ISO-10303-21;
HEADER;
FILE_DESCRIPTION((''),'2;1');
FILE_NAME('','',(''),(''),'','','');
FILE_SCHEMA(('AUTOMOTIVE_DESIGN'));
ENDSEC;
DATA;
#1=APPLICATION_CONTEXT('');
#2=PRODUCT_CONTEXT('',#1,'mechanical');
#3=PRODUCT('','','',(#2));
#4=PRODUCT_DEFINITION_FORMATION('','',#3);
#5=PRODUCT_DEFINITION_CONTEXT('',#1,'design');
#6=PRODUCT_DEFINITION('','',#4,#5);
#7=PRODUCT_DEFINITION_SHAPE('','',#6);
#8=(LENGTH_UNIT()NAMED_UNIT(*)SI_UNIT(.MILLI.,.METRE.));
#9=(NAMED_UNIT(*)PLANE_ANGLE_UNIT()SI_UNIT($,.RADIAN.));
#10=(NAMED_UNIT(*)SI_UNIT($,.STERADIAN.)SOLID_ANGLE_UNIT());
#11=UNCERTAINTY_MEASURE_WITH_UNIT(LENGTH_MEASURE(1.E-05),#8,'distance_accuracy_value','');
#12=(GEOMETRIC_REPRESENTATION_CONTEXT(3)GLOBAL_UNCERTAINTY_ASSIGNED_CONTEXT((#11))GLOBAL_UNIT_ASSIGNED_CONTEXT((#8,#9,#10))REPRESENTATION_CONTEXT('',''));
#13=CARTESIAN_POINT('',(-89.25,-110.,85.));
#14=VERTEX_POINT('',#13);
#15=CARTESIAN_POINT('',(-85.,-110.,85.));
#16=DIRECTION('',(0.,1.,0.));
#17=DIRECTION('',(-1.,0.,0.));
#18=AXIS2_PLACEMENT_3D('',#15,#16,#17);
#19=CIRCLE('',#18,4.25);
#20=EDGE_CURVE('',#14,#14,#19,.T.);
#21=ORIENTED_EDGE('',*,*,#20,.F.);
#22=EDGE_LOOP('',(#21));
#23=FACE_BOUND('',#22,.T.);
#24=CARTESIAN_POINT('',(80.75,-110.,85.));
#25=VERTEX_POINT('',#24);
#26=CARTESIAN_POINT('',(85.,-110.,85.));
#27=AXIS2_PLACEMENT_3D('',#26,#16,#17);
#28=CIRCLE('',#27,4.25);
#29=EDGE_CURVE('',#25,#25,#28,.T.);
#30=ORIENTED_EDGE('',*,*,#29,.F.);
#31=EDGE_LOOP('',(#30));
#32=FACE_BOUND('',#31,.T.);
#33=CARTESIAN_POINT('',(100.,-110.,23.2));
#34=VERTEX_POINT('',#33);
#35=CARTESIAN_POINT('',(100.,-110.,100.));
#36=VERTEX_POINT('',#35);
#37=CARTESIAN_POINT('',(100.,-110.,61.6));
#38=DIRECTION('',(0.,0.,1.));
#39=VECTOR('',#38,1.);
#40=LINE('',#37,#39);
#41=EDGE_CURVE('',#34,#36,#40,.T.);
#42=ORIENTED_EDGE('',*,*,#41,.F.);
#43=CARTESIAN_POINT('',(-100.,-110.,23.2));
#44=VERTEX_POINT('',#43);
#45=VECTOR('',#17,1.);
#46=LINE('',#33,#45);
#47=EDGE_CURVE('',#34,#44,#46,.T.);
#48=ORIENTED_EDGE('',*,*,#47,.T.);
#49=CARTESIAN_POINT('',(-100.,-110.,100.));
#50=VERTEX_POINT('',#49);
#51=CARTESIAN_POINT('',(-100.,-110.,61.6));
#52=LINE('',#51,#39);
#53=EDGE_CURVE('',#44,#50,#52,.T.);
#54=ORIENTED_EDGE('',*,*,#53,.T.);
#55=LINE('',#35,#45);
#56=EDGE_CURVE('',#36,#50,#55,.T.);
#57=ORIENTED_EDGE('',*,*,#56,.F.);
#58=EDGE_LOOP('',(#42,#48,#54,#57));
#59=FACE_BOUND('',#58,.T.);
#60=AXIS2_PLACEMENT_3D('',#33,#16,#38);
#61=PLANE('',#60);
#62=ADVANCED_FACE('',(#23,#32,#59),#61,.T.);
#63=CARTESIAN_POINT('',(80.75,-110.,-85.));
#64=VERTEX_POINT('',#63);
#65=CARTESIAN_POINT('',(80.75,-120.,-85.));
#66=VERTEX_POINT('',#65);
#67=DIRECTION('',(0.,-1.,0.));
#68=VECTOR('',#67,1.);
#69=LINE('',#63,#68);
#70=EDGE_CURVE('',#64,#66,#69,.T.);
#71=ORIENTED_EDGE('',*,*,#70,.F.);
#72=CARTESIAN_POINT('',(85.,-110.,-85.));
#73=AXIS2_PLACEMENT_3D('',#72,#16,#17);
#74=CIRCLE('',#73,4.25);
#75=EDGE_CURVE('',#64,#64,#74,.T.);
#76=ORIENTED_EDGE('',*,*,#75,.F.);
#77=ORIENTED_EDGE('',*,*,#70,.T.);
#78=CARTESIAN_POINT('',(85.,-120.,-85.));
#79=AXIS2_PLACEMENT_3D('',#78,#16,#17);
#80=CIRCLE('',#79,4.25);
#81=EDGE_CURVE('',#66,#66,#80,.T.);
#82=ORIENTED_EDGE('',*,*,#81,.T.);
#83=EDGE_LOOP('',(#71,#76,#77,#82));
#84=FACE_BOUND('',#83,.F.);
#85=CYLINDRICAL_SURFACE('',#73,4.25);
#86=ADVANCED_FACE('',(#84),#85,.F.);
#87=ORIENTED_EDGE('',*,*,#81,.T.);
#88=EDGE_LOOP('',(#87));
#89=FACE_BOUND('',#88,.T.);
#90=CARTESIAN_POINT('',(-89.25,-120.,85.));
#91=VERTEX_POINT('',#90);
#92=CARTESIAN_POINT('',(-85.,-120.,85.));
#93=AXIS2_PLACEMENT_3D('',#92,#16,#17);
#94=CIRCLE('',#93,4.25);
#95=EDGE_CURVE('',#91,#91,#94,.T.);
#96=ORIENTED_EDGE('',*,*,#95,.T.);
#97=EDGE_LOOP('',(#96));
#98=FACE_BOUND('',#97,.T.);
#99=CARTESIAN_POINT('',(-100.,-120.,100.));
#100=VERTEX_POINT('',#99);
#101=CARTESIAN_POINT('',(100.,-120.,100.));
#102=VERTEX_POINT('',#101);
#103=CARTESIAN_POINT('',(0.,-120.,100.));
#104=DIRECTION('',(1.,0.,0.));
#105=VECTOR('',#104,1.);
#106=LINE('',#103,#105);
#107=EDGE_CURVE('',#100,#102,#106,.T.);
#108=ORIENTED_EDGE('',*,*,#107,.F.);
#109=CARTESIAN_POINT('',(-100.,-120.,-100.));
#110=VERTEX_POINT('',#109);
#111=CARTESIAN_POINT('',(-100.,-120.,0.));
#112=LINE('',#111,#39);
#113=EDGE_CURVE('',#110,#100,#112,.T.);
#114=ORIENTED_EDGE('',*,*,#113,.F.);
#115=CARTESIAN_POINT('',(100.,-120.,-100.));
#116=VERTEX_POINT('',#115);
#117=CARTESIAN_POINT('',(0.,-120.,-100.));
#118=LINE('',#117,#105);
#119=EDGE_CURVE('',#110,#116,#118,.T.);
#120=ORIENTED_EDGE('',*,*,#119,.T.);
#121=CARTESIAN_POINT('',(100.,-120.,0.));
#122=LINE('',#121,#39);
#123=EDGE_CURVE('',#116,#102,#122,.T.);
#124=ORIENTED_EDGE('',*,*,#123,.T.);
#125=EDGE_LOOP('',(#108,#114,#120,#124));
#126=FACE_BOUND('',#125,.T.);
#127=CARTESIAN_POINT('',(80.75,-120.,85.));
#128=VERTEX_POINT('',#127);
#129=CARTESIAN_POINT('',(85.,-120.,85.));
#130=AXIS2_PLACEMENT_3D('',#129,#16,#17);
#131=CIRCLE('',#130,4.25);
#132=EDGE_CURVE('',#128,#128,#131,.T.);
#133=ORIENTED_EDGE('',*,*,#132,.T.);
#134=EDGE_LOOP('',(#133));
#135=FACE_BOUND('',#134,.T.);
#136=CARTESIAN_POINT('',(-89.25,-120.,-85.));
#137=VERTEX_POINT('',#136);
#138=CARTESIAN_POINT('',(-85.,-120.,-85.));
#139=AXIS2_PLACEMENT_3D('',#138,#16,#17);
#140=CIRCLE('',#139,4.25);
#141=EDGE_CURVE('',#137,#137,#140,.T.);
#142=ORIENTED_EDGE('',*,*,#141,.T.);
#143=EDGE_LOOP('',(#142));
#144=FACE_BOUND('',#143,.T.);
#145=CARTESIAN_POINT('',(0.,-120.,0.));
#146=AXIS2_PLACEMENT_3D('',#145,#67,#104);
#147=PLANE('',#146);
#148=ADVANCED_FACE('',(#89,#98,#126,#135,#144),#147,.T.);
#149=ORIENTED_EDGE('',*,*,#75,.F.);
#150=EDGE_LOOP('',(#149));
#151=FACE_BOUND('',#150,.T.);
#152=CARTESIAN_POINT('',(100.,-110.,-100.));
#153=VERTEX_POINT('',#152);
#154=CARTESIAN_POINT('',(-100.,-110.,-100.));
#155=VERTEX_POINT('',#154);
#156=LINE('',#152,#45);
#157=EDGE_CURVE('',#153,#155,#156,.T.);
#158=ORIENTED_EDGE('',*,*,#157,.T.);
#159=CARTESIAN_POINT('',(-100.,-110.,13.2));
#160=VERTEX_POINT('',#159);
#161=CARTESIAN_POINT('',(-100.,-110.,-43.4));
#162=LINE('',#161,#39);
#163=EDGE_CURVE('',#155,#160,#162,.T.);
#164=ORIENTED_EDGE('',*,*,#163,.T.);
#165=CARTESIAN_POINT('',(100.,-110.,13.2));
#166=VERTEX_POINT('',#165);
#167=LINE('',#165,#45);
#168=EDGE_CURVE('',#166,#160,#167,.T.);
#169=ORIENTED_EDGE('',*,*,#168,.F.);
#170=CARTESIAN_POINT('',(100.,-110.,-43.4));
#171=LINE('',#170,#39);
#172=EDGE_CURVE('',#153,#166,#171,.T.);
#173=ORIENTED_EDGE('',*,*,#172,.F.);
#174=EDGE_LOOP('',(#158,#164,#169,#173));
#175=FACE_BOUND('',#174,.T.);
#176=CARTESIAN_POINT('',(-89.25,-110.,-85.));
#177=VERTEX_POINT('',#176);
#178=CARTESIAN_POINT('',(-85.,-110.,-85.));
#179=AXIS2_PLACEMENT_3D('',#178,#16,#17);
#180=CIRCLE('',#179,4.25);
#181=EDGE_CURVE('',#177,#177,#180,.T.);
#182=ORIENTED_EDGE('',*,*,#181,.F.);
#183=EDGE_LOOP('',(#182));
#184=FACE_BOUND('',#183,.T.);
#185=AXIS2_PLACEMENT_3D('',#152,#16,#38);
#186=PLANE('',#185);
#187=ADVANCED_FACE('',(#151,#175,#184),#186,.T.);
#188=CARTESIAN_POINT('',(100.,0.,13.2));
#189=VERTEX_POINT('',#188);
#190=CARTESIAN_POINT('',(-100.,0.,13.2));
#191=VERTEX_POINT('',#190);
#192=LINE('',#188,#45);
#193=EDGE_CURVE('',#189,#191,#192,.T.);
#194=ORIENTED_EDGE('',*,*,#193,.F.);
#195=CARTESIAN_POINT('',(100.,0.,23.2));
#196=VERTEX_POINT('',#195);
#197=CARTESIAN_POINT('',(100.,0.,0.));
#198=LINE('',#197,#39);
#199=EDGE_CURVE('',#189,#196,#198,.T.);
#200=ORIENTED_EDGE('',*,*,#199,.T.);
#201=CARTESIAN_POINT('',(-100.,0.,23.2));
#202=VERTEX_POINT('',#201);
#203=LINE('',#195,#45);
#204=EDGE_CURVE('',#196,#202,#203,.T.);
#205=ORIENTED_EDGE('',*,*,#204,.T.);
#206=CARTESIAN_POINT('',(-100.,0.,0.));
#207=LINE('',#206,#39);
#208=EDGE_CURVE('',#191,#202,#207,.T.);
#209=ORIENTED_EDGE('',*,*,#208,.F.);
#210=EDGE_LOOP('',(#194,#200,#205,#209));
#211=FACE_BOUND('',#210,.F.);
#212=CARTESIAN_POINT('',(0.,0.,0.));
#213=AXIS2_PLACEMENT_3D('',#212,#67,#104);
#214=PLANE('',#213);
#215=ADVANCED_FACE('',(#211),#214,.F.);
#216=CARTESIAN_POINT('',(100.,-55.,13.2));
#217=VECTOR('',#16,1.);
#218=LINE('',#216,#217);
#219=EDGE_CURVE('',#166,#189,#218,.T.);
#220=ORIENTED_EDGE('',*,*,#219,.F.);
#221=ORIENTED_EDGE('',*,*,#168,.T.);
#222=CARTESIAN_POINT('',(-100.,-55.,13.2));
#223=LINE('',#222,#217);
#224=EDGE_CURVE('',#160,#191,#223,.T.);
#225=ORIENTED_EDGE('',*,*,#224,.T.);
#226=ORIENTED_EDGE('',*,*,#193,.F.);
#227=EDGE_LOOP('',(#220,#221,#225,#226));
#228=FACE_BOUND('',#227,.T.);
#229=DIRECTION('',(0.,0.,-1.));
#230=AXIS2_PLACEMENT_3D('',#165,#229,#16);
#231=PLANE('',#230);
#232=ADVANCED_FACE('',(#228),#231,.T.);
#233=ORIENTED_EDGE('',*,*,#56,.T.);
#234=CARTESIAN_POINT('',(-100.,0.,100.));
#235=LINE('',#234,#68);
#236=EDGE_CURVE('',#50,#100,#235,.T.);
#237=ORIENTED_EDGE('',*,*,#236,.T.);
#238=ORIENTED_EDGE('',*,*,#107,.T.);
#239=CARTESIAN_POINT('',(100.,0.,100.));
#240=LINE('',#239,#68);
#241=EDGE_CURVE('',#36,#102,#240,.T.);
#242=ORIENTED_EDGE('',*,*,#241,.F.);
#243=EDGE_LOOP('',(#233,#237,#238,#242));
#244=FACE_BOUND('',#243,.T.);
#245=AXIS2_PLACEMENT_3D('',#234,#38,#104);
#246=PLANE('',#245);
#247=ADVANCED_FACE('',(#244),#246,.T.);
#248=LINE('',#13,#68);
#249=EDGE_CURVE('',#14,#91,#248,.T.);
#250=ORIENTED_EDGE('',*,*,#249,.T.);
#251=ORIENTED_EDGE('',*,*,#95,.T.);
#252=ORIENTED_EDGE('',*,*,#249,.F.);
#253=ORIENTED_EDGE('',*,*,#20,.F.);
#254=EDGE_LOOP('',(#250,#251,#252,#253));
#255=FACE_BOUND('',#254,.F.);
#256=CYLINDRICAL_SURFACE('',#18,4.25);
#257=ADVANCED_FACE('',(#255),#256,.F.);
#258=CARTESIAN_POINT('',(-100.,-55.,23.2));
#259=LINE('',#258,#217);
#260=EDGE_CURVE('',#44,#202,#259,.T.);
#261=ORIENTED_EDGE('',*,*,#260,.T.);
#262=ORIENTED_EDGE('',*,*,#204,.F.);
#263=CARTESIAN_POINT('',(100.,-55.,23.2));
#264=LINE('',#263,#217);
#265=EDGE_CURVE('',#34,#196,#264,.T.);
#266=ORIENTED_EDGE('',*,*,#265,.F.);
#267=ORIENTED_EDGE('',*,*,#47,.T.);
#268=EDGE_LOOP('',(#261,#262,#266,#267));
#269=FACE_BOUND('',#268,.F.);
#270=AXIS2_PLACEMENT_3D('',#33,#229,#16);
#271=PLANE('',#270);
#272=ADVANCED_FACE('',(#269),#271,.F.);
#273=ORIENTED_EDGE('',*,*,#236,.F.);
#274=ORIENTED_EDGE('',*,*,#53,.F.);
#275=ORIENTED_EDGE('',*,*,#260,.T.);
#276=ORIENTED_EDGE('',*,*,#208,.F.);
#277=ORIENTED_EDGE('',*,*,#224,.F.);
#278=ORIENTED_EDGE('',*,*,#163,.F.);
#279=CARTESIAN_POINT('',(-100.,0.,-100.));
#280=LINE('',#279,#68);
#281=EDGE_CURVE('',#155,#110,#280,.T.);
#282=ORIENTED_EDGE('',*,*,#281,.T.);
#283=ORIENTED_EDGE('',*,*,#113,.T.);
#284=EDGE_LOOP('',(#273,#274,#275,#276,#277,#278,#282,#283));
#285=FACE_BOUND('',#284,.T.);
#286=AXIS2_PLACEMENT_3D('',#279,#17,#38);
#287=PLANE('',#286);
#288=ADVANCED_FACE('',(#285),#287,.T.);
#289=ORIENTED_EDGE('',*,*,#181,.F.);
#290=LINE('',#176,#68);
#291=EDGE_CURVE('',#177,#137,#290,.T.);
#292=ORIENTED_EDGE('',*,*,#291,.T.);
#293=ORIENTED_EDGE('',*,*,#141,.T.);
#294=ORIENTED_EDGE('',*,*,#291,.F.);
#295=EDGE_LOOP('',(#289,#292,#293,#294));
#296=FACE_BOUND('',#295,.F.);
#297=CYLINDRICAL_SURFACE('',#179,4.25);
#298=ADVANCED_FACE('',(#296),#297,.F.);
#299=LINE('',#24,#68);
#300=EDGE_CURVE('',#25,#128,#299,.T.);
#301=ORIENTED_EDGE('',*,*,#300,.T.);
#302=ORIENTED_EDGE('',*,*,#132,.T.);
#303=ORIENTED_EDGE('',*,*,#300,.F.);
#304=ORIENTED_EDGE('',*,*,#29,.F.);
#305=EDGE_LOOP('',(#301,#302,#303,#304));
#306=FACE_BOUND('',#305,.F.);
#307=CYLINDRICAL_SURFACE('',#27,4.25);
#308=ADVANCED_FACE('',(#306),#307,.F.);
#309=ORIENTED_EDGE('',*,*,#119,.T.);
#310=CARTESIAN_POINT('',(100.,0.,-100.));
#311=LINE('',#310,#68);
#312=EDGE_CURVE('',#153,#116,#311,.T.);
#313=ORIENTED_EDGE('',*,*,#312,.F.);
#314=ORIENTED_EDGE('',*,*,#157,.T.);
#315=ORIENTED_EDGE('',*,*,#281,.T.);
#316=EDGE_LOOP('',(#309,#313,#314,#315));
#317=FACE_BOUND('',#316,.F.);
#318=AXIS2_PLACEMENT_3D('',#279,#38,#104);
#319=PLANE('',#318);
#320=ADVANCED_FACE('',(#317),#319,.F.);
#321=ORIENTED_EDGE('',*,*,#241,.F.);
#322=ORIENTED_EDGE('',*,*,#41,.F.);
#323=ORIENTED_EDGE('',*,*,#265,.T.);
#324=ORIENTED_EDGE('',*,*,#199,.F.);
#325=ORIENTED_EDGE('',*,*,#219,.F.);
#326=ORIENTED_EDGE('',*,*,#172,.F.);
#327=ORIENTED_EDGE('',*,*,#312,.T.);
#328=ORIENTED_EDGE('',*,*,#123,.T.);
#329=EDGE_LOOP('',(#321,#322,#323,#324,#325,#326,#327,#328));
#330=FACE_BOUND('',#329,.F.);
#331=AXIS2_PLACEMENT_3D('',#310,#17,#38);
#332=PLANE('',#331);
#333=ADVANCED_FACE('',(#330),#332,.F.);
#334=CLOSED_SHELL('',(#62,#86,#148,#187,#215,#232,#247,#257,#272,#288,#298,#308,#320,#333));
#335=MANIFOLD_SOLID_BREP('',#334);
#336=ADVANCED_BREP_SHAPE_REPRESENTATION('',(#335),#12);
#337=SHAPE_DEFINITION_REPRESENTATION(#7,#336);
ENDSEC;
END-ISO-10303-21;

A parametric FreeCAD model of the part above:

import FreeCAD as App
import Part
import Sketcher

V = App.Vector


def add_polygon(sketch, points):
    """Adds a closed chain of lines whose ends are joined by coincident constraints."""
    first, n = sketch.GeometryCount, len(points)
    for a, b in zip(points, points[1:] + points[:1]):
        sketch.addGeometry(Part.LineSegment(App.Vector(*a, 0), App.Vector(*b, 0)), False)
    for i in range(n):
        sketch.addConstraint(Sketcher.Constraint("Coincident", first + i, 2, first + (i + 1) % n, 1))

doc = App.newDocument("Part")
body = doc.addObject("PartDesign::Body", "Body")

# Sketch on XZ plane
sketch1 = body.newObject("Sketcher::SketchObject", "Sketch")
sketch1.AttachmentSupport = (doc.getObject("XZ_Plane"), [""])
sketch1.MapMode = "FlatFace"
add_polygon(sketch1, [(-100, 100), (-100, -100), (100, -100), (100, 100)])  # lines 0-3
sketch1.addConstraint([
    Sketcher.Constraint("Vertical", 0),
    Sketcher.Constraint("Horizontal", 1),
    Sketcher.Constraint("Vertical", 2),
    Sketcher.Constraint("Horizontal", 3),
    Sketcher.Constraint("Symmetric", 0, 2, 2, 2, -1, 1),
    Sketcher.Constraint("Equal", 3, 0),
    Sketcher.Constraint("DistanceX", 1, 1, 1, 2, 200.0),
])
pad1 = body.newObject("PartDesign::Pad", "Pad")
pad1.Profile = sketch1
pad1.Length = 120

# Sketch on YZ plane
sketch2 = body.newObject("Sketcher::SketchObject", "Sketch001")
sketch2.AttachmentSupport = (doc.getObject("YZ_Plane"), [""])
sketch2.MapMode = "FlatFace"
sketch2.AttachmentOffset = App.Placement(V(0, 0, 100), App.Rotation())
add_polygon(sketch2, [(-110, 100), (-110, 23), (0, 23), (0, 100)])  # lines 0-3
add_polygon(sketch2, [(-110, 13), (-110, -100), (0, -100), (0, 13)])  # lines 4-7
sketch2.addConstraint([
    Sketcher.Constraint("Vertical", 0),
    Sketcher.Constraint("Horizontal", 1),
    Sketcher.Constraint("Vertical", 2),
    Sketcher.Constraint("Horizontal", 3),
    Sketcher.Constraint("Vertical", 4),
    Sketcher.Constraint("Horizontal", 5),
    Sketcher.Constraint("Vertical", 6),
    Sketcher.Constraint("Horizontal", 7),
    Sketcher.Constraint("Symmetric", 2, 2, 5, 2, -1, 1),
    Sketcher.Constraint("PointOnObject", 1, 2, -2),
    Sketcher.Constraint("Vertical", 3, 2, 4, 2),
    Sketcher.Constraint("DistanceX", 1, 1, 1, 2, 110.0),
    Sketcher.Constraint("DistanceY", 0, 2, 0, 1, 76.8),
    Sketcher.Constraint("DistanceY", 4, 2, 4, 1, 113.2),
    Sketcher.Constraint("DistanceY", -1, 1, 2, 2, 100.0),
])
pocket1 = body.newObject("PartDesign::Pocket", "Pocket")
pocket1.Profile = sketch2
pocket1.Length = 200

# Sketch on XZ plane
sketch3 = body.newObject("Sketcher::SketchObject", "Sketch002")
sketch3.AttachmentSupport = (doc.getObject("XZ_Plane"), [""])
sketch3.MapMode = "FlatFace"
sketch3.AttachmentOffset = App.Placement(V(0, 0, 110), App.Rotation())
sketch3.addGeometry([
    Part.Circle(V(85, 85, 0), V(0, 0, 1), 4.2),
    Part.Circle(V(-85, 85, 0), V(0, 0, 1), 4.2),
], False)
sketch3.addConstraint([
    Sketcher.Constraint("Equal", 0, 1),
    Sketcher.Constraint("Symmetric", 0, 3, 1, 3, -2),
    Sketcher.Constraint("Diameter", 0, 8.5),
    Sketcher.Constraint("DistanceX", -1, 1, 0, 3, 85.0),
    Sketcher.Constraint("DistanceY", -1, 1, 0, 3, 85.0),
])
pocket2 = body.newObject("PartDesign::Pocket", "Pocket001")
pocket2.Profile = sketch3
pocket2.Length = 10
pocket2.Reversed = True

# Sketch on XZ plane
sketch4 = body.newObject("Sketcher::SketchObject", "Sketch003")
sketch4.AttachmentSupport = (doc.getObject("XZ_Plane"), [""])
sketch4.MapMode = "FlatFace"
sketch4.AttachmentOffset = App.Placement(V(0, 0, 110), App.Rotation())
sketch4.addGeometry(Part.Circle(V(85, -85, 0), V(0, 0, 1), 4.2), False)
sketch4.addConstraint([
    Sketcher.Constraint("Diameter", 0, 8.5),
    Sketcher.Constraint("DistanceX", -1, 1, 0, 3, 85.0),
    Sketcher.Constraint("DistanceY", 0, 3, -1, 1, 85.0),
])
pocket3 = body.newObject("PartDesign::Pocket", "Pocket002")
pocket3.Profile = sketch4
pocket3.Length = 10
pocket3.Reversed = True

# Sketch on XZ plane
sketch5 = body.newObject("Sketcher::SketchObject", "Sketch004")
sketch5.AttachmentSupport = (doc.getObject("XZ_Plane"), [""])
sketch5.MapMode = "FlatFace"
sketch5.AttachmentOffset = App.Placement(V(0, 0, 110), App.Rotation())
sketch5.addGeometry(Part.Circle(V(-85, -85, 0), V(0, 0, 1), 4.2), False)
sketch5.addConstraint([
    Sketcher.Constraint("Diameter", 0, 8.5),
    Sketcher.Constraint("DistanceX", 0, 3, -1, 1, 85.0),
    Sketcher.Constraint("DistanceY", 0, 3, -1, 1, 85.0),
])
pocket4 = body.newObject("PartDesign::Pocket", "Pocket003")
pocket4.Profile = sketch5
pocket4.Length = 10
pocket4.Reversed = True

doc.recompute()
